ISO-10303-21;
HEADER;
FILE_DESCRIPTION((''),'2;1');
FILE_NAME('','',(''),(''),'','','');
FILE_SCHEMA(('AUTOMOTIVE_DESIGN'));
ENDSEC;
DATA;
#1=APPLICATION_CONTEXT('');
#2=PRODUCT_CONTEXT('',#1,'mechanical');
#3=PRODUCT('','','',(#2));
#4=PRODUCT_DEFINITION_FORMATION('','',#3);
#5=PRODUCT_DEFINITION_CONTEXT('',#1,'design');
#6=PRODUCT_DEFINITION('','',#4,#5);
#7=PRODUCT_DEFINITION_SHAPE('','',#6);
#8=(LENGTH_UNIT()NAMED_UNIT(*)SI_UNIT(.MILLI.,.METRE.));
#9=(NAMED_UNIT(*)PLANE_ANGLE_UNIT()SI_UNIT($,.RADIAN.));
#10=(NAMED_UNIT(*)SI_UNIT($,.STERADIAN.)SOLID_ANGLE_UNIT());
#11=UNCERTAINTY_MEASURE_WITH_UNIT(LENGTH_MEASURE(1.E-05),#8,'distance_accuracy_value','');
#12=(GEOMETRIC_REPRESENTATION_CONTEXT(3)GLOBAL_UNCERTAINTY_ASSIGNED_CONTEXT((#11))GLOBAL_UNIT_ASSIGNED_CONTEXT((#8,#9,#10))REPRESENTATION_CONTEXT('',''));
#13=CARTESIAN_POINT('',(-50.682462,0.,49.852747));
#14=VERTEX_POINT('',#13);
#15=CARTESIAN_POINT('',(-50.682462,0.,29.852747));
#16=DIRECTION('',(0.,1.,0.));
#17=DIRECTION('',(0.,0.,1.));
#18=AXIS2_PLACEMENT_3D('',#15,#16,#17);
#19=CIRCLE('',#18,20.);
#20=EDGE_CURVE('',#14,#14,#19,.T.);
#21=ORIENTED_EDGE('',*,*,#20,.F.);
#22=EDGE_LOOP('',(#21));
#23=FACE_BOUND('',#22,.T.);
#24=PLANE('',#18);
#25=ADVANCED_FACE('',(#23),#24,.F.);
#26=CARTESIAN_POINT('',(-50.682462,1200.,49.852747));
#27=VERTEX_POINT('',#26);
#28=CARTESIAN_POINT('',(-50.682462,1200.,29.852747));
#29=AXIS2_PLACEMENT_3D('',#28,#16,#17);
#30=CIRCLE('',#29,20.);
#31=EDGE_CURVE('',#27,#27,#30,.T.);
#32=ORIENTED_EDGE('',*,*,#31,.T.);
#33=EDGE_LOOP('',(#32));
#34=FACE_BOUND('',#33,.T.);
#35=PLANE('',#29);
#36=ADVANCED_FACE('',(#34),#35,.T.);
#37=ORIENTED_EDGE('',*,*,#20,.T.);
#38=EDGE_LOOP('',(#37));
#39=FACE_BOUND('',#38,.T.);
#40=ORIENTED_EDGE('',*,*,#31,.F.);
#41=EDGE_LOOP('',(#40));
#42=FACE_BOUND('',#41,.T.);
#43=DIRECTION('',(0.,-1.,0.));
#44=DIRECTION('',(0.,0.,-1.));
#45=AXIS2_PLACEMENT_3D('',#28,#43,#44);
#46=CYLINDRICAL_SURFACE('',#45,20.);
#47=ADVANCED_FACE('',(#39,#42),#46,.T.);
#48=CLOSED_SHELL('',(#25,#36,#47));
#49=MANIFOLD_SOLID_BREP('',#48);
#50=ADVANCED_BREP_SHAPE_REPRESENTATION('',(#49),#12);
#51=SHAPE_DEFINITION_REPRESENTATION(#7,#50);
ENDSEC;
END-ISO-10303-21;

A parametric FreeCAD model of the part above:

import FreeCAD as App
import Part
import Sketcher
Q = App.Units.Quantity

doc = App.newDocument("Part")
body = doc.addObject("PartDesign::Body", "Body")

sketch1 = body.newObject("Sketcher::SketchObject", "Sketch")
sketch1.AttachmentSupport = (doc.getObject("XZ_Plane"), [""])
sketch1.MapMode = "FlatFace"
sketch1.addGeometry(Part.Circle(App.Vector(-51, 30, 0), App.Vector(0, 0, 1), 20), False)
sketch1.addConstraint([
    Sketcher.Constraint("Diameter", 0, Q("40 mm")),
    Sketcher.Constraint("DistanceX", 0, 3, -1, 1, Q("50.682462 mm")),
    Sketcher.Constraint("DistanceY", -1, 1, 0, 3, Q("29.852747 mm")),
])
pad1 = body.newObject("PartDesign::Pad", "Pad")
pad1.Profile = sketch1
pad1.Length = 1200
pad1.Reversed = True

doc.recompute()
